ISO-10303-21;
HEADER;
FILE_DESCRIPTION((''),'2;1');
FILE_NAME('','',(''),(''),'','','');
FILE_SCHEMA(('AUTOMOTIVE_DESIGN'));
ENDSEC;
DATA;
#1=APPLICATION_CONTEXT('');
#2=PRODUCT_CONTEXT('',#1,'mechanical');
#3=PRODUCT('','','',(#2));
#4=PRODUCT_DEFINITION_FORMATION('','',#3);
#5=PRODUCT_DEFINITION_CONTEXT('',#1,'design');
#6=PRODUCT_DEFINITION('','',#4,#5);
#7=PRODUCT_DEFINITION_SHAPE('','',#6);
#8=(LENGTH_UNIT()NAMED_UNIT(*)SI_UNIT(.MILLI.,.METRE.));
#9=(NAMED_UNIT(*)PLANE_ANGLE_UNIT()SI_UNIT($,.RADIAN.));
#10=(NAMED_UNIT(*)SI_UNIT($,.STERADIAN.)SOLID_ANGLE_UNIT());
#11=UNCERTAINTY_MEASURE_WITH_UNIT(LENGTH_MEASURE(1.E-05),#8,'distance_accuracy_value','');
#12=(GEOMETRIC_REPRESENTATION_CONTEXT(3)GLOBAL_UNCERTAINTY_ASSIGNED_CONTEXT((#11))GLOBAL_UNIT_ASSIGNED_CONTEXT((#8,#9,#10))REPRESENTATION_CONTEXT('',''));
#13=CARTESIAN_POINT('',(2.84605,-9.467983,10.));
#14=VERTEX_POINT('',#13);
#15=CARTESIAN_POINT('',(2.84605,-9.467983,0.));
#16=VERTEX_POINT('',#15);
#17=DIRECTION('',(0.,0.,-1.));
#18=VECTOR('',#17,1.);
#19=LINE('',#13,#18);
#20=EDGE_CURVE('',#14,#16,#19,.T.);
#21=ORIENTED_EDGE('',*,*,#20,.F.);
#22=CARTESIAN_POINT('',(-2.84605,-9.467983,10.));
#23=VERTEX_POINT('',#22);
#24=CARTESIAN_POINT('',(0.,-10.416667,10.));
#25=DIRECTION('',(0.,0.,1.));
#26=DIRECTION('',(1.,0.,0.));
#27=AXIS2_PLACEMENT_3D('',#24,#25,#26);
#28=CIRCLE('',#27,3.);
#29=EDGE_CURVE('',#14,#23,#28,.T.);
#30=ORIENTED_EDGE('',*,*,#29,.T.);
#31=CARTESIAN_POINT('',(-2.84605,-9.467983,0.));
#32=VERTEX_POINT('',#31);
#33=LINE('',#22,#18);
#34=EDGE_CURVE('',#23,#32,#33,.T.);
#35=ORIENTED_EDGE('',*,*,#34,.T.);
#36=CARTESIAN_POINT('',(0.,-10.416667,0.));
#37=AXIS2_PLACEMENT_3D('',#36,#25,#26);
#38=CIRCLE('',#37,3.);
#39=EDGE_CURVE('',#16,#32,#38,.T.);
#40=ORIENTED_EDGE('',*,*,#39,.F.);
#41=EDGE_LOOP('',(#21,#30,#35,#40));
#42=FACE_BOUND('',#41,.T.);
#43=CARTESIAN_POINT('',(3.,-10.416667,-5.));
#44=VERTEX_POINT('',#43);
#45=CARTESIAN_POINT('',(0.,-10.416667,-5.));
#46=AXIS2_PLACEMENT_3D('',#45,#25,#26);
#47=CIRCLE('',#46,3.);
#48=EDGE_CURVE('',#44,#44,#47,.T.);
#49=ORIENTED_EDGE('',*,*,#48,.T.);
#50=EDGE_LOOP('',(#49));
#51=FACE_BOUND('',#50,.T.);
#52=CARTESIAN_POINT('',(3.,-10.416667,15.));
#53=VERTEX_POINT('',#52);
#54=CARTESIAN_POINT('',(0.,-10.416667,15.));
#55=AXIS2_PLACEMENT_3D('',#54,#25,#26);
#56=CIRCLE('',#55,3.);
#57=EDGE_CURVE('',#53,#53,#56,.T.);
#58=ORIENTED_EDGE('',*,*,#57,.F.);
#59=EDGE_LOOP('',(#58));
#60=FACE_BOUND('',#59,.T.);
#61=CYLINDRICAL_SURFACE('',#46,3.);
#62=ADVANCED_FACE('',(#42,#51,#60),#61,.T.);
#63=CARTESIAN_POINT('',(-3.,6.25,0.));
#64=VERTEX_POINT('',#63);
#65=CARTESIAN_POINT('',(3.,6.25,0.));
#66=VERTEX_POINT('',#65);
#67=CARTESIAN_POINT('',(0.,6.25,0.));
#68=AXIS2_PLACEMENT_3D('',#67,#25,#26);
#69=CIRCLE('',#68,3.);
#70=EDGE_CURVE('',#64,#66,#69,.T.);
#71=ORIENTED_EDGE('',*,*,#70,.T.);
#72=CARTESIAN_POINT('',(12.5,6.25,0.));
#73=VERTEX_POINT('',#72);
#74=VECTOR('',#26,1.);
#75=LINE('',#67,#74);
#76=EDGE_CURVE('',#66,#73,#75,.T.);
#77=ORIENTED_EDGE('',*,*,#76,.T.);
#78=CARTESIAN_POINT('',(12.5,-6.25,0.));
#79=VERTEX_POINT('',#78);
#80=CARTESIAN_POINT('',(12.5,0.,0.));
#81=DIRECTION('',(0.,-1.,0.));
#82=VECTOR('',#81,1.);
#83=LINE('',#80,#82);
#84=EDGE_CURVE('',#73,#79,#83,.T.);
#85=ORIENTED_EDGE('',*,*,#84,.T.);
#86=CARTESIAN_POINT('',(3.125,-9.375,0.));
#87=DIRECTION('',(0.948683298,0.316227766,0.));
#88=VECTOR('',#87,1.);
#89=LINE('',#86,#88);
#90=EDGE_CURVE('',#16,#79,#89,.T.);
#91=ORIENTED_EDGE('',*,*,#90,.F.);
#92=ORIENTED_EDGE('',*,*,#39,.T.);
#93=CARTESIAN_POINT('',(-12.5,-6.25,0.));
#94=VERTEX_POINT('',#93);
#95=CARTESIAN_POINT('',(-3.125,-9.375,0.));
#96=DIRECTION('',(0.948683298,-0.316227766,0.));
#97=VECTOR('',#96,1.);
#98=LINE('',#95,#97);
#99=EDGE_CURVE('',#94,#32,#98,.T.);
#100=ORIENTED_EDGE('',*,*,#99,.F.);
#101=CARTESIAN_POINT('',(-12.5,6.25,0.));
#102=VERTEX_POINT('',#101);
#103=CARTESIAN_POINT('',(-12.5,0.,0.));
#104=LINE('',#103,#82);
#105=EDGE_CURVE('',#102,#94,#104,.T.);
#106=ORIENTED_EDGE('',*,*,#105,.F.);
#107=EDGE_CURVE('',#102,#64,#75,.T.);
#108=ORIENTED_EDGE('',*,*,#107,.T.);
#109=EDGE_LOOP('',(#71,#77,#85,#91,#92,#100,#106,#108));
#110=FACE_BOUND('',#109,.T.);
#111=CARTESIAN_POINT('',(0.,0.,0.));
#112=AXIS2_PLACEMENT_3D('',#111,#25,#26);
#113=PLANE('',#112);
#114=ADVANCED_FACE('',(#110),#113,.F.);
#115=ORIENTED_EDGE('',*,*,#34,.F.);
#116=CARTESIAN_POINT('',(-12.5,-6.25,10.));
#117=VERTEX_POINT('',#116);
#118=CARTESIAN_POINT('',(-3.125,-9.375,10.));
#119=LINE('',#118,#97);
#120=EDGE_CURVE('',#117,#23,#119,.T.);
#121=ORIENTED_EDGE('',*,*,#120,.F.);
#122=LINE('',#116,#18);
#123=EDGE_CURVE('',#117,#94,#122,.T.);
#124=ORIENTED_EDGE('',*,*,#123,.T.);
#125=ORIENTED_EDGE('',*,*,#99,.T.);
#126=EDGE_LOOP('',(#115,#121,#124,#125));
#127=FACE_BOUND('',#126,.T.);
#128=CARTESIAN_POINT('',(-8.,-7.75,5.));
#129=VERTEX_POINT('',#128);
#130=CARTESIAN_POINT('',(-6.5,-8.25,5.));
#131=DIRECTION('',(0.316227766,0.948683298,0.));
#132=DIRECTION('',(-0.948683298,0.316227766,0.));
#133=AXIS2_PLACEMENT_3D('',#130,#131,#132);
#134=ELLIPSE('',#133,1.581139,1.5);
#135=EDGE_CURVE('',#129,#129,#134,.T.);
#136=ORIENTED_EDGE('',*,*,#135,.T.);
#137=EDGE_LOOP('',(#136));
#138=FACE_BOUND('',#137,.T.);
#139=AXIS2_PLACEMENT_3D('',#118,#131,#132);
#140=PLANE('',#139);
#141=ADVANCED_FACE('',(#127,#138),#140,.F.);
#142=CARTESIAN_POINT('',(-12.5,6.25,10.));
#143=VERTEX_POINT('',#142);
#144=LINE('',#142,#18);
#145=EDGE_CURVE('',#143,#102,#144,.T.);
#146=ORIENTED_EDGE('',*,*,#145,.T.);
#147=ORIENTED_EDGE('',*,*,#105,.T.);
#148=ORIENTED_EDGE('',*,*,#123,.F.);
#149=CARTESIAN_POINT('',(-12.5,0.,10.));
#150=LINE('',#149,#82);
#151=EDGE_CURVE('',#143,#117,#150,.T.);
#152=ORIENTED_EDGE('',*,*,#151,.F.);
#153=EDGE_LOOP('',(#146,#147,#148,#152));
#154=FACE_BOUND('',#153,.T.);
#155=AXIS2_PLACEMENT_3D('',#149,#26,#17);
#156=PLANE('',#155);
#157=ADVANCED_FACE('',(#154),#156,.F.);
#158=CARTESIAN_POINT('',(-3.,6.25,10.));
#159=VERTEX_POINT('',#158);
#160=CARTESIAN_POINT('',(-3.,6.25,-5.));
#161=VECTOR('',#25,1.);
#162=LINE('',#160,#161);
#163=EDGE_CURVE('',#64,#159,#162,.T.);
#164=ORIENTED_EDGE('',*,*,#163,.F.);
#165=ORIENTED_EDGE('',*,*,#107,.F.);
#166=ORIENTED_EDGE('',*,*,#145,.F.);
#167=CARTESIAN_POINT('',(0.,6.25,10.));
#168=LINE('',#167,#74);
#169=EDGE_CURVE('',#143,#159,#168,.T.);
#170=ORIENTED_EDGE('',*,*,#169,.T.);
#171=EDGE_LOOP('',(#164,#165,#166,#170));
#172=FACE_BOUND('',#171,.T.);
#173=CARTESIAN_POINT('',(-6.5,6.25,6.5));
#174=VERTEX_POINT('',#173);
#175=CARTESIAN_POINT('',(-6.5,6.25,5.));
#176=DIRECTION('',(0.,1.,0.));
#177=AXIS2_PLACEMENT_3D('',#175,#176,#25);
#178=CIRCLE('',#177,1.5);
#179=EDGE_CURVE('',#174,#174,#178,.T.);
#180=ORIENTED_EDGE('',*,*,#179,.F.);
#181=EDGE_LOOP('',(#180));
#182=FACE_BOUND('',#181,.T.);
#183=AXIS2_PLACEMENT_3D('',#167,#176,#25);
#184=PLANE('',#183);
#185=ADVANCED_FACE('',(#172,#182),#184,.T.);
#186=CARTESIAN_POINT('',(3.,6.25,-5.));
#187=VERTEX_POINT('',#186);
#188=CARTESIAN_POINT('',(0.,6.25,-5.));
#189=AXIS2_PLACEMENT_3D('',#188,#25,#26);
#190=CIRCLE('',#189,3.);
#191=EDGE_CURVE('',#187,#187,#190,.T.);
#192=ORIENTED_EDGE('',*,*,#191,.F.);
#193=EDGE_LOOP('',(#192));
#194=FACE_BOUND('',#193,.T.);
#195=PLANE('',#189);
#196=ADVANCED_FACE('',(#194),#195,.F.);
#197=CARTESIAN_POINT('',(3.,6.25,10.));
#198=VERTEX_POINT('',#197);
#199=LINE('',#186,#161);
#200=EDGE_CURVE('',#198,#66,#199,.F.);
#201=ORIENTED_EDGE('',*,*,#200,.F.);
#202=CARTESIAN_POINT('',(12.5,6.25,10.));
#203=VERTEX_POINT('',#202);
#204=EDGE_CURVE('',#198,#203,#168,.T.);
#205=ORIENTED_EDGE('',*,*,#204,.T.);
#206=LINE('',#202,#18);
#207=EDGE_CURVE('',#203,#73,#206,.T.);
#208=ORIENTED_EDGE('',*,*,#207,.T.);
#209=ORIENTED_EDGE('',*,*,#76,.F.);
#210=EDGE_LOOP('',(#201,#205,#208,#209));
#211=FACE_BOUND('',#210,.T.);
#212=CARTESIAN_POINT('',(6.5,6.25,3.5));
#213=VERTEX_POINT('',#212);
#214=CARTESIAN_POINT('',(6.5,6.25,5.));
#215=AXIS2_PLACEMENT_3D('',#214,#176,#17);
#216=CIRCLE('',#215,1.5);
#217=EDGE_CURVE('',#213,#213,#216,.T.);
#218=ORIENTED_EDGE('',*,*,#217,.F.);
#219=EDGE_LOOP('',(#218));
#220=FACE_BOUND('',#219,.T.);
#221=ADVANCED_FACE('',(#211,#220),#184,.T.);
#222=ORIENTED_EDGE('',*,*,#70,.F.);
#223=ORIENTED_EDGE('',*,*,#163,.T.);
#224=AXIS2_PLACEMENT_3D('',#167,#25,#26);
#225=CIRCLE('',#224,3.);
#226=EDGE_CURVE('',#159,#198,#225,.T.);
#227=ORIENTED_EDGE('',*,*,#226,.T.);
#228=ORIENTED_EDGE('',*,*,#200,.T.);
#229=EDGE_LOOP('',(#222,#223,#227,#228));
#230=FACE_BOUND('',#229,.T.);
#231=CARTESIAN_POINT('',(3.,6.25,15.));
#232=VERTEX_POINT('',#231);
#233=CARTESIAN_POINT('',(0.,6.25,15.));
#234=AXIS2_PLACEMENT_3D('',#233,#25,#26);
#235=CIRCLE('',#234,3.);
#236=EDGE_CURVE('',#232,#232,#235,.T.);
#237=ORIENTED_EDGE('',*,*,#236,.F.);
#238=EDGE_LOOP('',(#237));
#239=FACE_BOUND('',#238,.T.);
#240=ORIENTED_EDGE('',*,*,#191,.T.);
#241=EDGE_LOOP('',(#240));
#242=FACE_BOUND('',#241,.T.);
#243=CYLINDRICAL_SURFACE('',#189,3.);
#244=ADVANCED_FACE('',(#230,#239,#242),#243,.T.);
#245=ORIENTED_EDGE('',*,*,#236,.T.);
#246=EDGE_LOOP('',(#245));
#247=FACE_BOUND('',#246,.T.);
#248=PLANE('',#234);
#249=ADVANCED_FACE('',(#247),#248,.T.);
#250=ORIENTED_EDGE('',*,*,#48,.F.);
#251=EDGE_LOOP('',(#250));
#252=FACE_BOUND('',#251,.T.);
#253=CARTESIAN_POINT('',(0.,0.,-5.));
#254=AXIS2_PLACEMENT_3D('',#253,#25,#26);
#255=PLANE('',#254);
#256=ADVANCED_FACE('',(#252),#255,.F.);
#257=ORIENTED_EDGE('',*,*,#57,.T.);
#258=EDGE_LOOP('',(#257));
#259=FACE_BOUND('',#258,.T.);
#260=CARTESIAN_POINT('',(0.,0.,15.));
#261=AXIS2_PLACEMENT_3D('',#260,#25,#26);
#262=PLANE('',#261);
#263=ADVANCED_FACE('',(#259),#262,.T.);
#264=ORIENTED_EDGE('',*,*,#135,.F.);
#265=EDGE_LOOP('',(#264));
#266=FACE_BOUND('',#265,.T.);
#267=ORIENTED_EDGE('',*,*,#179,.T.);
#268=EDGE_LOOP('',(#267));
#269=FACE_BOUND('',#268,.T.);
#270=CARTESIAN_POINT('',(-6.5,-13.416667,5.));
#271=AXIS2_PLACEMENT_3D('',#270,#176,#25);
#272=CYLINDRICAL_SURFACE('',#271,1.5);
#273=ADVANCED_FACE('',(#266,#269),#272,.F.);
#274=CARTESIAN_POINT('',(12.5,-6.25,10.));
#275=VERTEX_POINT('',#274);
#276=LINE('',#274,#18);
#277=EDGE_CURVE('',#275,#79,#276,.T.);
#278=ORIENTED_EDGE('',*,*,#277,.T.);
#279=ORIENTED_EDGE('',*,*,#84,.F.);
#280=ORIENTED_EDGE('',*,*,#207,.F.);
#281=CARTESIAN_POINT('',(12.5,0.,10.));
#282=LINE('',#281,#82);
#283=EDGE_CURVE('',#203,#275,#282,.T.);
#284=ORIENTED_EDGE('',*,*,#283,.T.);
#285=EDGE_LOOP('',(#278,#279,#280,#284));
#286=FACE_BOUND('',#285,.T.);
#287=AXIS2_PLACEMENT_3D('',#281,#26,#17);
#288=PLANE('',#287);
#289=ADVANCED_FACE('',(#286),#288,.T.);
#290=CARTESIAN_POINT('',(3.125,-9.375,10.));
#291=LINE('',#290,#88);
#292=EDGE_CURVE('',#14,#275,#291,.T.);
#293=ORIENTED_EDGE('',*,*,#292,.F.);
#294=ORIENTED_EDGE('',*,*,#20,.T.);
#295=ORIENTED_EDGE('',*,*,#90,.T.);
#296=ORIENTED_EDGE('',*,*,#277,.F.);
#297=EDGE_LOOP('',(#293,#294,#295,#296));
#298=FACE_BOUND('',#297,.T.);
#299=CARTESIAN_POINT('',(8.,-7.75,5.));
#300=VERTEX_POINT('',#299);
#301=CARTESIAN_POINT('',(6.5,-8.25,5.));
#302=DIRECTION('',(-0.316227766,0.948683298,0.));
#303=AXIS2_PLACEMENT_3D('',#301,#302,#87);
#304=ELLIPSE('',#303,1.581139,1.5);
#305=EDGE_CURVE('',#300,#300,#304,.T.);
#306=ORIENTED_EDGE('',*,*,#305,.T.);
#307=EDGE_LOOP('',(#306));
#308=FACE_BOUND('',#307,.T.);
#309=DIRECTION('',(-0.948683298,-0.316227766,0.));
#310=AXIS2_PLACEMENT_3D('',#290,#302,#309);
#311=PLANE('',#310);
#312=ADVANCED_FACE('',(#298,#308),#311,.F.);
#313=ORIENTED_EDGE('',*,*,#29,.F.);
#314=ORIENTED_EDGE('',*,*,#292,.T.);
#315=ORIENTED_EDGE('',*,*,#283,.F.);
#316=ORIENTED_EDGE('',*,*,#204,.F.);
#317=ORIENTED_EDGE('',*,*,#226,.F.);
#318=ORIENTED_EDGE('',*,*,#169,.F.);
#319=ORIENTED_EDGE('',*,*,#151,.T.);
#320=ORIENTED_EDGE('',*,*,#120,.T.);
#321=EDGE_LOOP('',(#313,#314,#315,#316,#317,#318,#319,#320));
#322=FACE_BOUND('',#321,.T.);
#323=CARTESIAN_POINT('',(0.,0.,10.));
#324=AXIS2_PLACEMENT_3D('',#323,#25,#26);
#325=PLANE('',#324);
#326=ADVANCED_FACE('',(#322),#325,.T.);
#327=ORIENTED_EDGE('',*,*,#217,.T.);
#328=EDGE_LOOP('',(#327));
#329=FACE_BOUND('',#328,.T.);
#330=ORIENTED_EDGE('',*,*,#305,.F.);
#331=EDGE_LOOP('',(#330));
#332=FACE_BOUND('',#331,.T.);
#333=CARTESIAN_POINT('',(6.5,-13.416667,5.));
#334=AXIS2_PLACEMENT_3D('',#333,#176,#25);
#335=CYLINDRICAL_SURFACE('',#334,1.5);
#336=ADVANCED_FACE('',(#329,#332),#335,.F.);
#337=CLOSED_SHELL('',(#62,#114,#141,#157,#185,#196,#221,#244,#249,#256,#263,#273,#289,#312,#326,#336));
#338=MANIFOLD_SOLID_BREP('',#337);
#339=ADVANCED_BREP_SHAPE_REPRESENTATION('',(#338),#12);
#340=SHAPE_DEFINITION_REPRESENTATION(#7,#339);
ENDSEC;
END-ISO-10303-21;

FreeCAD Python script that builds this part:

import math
import FreeCAD as App
import Part
import Sketcher
from FreeCAD import Vector
Q = App.Units.Quantity

doc = App.newDocument("Part")
body = doc.addObject("PartDesign::Body", "Body")

sketch1 = body.newObject("Sketcher::SketchObject", "Sketch")
sketch1.AttachmentSupport = (doc.getObject("XY_Plane"), [""])
sketch1.MapMode = "FlatFace"
sketch1.addGeometry(Part.LineSegment(Vector(-12.5, 6.2, 0), Vector(-12.5, -6.2, 0)), False)
sketch1.addGeometry(Part.LineSegment(Vector(-12.5, -6.2, 0), Vector(-2.8, -9.5, 0)), False)
sketch1.addGeometry(Part.ArcOfCircle(Part.Circle(Vector(0, -10.4, 0), Vector(0, 0, 1), 3), math.radians(18), math.radians(162)), False)
sketch1.addGeometry(Part.LineSegment(Vector(2.8, -9.5, 0), Vector(12.5, -6.2, 0)), False)
sketch1.addGeometry(Part.LineSegment(Vector(12.5, -6.2, 0), Vector(12.5, 6.2, 0)), False)
sketch1.addGeometry(Part.LineSegment(Vector(12.5, 6.2, 0), Vector(-12.5, 6.2, 0)), False)
sketch1.addConstraint(Sketcher.Constraint("Coincident", 0, 2, 1, 1))
sketch1.addConstraint(Sketcher.Constraint("Coincident", 1, 2, 2, 2))
sketch1.addConstraint(Sketcher.Constraint("Coincident", 2, 1, 3, 1))
sketch1.addConstraint(Sketcher.Constraint("Coincident", 3, 2, 4, 1))
sketch1.addConstraint(Sketcher.Constraint("Coincident", 4, 2, 5, 1))
sketch1.addConstraint(Sketcher.Constraint("Coincident", 5, 2, 0, 1))
sketch1.addConstraint(Sketcher.Constraint("Vertical", 0))
sketch1.addConstraint(Sketcher.Constraint("Vertical", 4))
sketch1.addConstraint(Sketcher.Constraint("Horizontal", 5))
sketch1.addConstraint(Sketcher.Constraint("Symmetric", 0, 2, 4, 2, -1, 1))
sketch1.addConstraint(Sketcher.Constraint("Symmetric", 1, 2, 2, 1, -2))
sketch1.addConstraint(Sketcher.Constraint("Horizontal", 0, 2, 3, 2))
sketch1.addConstraint(Sketcher.Constraint("Radius", 2, Q("3 mm")))
sketch1.addConstraint(Sketcher.Constraint("DistanceX", 5, 2, 5, 1, Q("25 mm")))
sketch1.addConstraint(Sketcher.Constraint("DistanceY", 0, 2, 0, 1, Q("12.5 mm")))
sketch1.addConstraint(Sketcher.Constraint("DistanceX", 1, 2, 2, 1, Q("5.6921 mm")))
sketch1.addConstraint(Sketcher.Constraint("Distance", 1, Q("10.176157 mm")))
pad1 = body.newObject("PartDesign::Pad", "Pad")
pad1.Profile = sketch1
pad1.Length = 10

sketch2 = body.newObject("Sketcher::SketchObject", "Sketch001")
sketch2.AttachmentSupport = (doc.getObject("XY_Plane"), [""])
sketch2.MapMode = "FlatFace"
sketch2.addGeometry(Part.Circle(Vector(0, -10.4, 0), Vector(0, 0, 1), 3), False)
sketch2.addConstraint(Sketcher.Constraint("PointOnObject", 0, 3, -2))
sketch2.addConstraint(Sketcher.Constraint("Diameter", 0, Q("6 mm")))
sketch2.addConstraint(Sketcher.Constraint("DistanceY", 0, 3, -1, 1, Q("10.416667 mm")))
pad2 = body.newObject("PartDesign::Pad", "Pad001")
pad2.Profile = sketch2
pad2.Type = "TwoLengths"
pad2.Length = 15
pad2.Length2 = 5

sketch3 = body.newObject("Sketcher::SketchObject", "Sketch002")
sketch3.AttachmentSupport = (doc.getObject("XZ_Plane"), [""])
sketch3.MapMode = "FlatFace"
sketch3.AttachmentOffset = App.Placement(Vector(0, 0, -6.25), App.Rotation())
sketch3.addGeometry(Part.Circle(Vector(-6.5, 5, 0), Vector(0, 0, 1), 1.5), False)
sketch3.addGeometry(Part.Circle(Vector(6.5, 5, 0), Vector(0, 0, 1), 1.5), False)
sketch3.addConstraint(Sketcher.Constraint("Equal", 0, 1))
sketch3.addConstraint(Sketcher.Constraint("Symmetric", 0, 3, 1, 3, -2))
sketch3.addConstraint(Sketcher.Constraint("Diameter", 0, Q("3 mm")))
sketch3.addConstraint(Sketcher.Constraint("DistanceY", -1, 1, 0, 3, Q("5 mm")))
sketch3.addConstraint(Sketcher.Constraint("DistanceX", 0, 3, 1, 3, Q("13 mm")))
pocket1 = body.newObject("PartDesign::Pocket", "Pocket")
pocket1.Profile = sketch3
pocket1.Type = "ThroughAll"
pocket1.Reversed = True

sketch4 = body.newObject("Sketcher::SketchObject", "Sketch003")
sketch4.AttachmentSupport = (doc.getObject("XY_Plane"), [""])
sketch4.MapMode = "FlatFace"
sketch4.AttachmentOffset = App.Placement(Vector(0, 0, 10), App.Rotation())
sketch4.addGeometry(Part.Circle(Vector(0, 6.2, 0), Vector(0, 0, 1), 3), False)
sketch4.addConstraint(Sketcher.Constraint("PointOnObject", 0, 3, -2))
sketch4.addConstraint(Sketcher.Constraint("Diameter", 0, Q("6 mm")))
sketch4.addConstraint(Sketcher.Constraint("DistanceY", -1, 1, 0, 3, Q("6.25 mm")))
pad3 = body.newObject("PartDesign::Pad", "Pad002")
pad3.Profile = sketch4
pad3.Type = "TwoLengths"
pad3.Length = 5
pad3.Length2 = 15

doc.recompute()
